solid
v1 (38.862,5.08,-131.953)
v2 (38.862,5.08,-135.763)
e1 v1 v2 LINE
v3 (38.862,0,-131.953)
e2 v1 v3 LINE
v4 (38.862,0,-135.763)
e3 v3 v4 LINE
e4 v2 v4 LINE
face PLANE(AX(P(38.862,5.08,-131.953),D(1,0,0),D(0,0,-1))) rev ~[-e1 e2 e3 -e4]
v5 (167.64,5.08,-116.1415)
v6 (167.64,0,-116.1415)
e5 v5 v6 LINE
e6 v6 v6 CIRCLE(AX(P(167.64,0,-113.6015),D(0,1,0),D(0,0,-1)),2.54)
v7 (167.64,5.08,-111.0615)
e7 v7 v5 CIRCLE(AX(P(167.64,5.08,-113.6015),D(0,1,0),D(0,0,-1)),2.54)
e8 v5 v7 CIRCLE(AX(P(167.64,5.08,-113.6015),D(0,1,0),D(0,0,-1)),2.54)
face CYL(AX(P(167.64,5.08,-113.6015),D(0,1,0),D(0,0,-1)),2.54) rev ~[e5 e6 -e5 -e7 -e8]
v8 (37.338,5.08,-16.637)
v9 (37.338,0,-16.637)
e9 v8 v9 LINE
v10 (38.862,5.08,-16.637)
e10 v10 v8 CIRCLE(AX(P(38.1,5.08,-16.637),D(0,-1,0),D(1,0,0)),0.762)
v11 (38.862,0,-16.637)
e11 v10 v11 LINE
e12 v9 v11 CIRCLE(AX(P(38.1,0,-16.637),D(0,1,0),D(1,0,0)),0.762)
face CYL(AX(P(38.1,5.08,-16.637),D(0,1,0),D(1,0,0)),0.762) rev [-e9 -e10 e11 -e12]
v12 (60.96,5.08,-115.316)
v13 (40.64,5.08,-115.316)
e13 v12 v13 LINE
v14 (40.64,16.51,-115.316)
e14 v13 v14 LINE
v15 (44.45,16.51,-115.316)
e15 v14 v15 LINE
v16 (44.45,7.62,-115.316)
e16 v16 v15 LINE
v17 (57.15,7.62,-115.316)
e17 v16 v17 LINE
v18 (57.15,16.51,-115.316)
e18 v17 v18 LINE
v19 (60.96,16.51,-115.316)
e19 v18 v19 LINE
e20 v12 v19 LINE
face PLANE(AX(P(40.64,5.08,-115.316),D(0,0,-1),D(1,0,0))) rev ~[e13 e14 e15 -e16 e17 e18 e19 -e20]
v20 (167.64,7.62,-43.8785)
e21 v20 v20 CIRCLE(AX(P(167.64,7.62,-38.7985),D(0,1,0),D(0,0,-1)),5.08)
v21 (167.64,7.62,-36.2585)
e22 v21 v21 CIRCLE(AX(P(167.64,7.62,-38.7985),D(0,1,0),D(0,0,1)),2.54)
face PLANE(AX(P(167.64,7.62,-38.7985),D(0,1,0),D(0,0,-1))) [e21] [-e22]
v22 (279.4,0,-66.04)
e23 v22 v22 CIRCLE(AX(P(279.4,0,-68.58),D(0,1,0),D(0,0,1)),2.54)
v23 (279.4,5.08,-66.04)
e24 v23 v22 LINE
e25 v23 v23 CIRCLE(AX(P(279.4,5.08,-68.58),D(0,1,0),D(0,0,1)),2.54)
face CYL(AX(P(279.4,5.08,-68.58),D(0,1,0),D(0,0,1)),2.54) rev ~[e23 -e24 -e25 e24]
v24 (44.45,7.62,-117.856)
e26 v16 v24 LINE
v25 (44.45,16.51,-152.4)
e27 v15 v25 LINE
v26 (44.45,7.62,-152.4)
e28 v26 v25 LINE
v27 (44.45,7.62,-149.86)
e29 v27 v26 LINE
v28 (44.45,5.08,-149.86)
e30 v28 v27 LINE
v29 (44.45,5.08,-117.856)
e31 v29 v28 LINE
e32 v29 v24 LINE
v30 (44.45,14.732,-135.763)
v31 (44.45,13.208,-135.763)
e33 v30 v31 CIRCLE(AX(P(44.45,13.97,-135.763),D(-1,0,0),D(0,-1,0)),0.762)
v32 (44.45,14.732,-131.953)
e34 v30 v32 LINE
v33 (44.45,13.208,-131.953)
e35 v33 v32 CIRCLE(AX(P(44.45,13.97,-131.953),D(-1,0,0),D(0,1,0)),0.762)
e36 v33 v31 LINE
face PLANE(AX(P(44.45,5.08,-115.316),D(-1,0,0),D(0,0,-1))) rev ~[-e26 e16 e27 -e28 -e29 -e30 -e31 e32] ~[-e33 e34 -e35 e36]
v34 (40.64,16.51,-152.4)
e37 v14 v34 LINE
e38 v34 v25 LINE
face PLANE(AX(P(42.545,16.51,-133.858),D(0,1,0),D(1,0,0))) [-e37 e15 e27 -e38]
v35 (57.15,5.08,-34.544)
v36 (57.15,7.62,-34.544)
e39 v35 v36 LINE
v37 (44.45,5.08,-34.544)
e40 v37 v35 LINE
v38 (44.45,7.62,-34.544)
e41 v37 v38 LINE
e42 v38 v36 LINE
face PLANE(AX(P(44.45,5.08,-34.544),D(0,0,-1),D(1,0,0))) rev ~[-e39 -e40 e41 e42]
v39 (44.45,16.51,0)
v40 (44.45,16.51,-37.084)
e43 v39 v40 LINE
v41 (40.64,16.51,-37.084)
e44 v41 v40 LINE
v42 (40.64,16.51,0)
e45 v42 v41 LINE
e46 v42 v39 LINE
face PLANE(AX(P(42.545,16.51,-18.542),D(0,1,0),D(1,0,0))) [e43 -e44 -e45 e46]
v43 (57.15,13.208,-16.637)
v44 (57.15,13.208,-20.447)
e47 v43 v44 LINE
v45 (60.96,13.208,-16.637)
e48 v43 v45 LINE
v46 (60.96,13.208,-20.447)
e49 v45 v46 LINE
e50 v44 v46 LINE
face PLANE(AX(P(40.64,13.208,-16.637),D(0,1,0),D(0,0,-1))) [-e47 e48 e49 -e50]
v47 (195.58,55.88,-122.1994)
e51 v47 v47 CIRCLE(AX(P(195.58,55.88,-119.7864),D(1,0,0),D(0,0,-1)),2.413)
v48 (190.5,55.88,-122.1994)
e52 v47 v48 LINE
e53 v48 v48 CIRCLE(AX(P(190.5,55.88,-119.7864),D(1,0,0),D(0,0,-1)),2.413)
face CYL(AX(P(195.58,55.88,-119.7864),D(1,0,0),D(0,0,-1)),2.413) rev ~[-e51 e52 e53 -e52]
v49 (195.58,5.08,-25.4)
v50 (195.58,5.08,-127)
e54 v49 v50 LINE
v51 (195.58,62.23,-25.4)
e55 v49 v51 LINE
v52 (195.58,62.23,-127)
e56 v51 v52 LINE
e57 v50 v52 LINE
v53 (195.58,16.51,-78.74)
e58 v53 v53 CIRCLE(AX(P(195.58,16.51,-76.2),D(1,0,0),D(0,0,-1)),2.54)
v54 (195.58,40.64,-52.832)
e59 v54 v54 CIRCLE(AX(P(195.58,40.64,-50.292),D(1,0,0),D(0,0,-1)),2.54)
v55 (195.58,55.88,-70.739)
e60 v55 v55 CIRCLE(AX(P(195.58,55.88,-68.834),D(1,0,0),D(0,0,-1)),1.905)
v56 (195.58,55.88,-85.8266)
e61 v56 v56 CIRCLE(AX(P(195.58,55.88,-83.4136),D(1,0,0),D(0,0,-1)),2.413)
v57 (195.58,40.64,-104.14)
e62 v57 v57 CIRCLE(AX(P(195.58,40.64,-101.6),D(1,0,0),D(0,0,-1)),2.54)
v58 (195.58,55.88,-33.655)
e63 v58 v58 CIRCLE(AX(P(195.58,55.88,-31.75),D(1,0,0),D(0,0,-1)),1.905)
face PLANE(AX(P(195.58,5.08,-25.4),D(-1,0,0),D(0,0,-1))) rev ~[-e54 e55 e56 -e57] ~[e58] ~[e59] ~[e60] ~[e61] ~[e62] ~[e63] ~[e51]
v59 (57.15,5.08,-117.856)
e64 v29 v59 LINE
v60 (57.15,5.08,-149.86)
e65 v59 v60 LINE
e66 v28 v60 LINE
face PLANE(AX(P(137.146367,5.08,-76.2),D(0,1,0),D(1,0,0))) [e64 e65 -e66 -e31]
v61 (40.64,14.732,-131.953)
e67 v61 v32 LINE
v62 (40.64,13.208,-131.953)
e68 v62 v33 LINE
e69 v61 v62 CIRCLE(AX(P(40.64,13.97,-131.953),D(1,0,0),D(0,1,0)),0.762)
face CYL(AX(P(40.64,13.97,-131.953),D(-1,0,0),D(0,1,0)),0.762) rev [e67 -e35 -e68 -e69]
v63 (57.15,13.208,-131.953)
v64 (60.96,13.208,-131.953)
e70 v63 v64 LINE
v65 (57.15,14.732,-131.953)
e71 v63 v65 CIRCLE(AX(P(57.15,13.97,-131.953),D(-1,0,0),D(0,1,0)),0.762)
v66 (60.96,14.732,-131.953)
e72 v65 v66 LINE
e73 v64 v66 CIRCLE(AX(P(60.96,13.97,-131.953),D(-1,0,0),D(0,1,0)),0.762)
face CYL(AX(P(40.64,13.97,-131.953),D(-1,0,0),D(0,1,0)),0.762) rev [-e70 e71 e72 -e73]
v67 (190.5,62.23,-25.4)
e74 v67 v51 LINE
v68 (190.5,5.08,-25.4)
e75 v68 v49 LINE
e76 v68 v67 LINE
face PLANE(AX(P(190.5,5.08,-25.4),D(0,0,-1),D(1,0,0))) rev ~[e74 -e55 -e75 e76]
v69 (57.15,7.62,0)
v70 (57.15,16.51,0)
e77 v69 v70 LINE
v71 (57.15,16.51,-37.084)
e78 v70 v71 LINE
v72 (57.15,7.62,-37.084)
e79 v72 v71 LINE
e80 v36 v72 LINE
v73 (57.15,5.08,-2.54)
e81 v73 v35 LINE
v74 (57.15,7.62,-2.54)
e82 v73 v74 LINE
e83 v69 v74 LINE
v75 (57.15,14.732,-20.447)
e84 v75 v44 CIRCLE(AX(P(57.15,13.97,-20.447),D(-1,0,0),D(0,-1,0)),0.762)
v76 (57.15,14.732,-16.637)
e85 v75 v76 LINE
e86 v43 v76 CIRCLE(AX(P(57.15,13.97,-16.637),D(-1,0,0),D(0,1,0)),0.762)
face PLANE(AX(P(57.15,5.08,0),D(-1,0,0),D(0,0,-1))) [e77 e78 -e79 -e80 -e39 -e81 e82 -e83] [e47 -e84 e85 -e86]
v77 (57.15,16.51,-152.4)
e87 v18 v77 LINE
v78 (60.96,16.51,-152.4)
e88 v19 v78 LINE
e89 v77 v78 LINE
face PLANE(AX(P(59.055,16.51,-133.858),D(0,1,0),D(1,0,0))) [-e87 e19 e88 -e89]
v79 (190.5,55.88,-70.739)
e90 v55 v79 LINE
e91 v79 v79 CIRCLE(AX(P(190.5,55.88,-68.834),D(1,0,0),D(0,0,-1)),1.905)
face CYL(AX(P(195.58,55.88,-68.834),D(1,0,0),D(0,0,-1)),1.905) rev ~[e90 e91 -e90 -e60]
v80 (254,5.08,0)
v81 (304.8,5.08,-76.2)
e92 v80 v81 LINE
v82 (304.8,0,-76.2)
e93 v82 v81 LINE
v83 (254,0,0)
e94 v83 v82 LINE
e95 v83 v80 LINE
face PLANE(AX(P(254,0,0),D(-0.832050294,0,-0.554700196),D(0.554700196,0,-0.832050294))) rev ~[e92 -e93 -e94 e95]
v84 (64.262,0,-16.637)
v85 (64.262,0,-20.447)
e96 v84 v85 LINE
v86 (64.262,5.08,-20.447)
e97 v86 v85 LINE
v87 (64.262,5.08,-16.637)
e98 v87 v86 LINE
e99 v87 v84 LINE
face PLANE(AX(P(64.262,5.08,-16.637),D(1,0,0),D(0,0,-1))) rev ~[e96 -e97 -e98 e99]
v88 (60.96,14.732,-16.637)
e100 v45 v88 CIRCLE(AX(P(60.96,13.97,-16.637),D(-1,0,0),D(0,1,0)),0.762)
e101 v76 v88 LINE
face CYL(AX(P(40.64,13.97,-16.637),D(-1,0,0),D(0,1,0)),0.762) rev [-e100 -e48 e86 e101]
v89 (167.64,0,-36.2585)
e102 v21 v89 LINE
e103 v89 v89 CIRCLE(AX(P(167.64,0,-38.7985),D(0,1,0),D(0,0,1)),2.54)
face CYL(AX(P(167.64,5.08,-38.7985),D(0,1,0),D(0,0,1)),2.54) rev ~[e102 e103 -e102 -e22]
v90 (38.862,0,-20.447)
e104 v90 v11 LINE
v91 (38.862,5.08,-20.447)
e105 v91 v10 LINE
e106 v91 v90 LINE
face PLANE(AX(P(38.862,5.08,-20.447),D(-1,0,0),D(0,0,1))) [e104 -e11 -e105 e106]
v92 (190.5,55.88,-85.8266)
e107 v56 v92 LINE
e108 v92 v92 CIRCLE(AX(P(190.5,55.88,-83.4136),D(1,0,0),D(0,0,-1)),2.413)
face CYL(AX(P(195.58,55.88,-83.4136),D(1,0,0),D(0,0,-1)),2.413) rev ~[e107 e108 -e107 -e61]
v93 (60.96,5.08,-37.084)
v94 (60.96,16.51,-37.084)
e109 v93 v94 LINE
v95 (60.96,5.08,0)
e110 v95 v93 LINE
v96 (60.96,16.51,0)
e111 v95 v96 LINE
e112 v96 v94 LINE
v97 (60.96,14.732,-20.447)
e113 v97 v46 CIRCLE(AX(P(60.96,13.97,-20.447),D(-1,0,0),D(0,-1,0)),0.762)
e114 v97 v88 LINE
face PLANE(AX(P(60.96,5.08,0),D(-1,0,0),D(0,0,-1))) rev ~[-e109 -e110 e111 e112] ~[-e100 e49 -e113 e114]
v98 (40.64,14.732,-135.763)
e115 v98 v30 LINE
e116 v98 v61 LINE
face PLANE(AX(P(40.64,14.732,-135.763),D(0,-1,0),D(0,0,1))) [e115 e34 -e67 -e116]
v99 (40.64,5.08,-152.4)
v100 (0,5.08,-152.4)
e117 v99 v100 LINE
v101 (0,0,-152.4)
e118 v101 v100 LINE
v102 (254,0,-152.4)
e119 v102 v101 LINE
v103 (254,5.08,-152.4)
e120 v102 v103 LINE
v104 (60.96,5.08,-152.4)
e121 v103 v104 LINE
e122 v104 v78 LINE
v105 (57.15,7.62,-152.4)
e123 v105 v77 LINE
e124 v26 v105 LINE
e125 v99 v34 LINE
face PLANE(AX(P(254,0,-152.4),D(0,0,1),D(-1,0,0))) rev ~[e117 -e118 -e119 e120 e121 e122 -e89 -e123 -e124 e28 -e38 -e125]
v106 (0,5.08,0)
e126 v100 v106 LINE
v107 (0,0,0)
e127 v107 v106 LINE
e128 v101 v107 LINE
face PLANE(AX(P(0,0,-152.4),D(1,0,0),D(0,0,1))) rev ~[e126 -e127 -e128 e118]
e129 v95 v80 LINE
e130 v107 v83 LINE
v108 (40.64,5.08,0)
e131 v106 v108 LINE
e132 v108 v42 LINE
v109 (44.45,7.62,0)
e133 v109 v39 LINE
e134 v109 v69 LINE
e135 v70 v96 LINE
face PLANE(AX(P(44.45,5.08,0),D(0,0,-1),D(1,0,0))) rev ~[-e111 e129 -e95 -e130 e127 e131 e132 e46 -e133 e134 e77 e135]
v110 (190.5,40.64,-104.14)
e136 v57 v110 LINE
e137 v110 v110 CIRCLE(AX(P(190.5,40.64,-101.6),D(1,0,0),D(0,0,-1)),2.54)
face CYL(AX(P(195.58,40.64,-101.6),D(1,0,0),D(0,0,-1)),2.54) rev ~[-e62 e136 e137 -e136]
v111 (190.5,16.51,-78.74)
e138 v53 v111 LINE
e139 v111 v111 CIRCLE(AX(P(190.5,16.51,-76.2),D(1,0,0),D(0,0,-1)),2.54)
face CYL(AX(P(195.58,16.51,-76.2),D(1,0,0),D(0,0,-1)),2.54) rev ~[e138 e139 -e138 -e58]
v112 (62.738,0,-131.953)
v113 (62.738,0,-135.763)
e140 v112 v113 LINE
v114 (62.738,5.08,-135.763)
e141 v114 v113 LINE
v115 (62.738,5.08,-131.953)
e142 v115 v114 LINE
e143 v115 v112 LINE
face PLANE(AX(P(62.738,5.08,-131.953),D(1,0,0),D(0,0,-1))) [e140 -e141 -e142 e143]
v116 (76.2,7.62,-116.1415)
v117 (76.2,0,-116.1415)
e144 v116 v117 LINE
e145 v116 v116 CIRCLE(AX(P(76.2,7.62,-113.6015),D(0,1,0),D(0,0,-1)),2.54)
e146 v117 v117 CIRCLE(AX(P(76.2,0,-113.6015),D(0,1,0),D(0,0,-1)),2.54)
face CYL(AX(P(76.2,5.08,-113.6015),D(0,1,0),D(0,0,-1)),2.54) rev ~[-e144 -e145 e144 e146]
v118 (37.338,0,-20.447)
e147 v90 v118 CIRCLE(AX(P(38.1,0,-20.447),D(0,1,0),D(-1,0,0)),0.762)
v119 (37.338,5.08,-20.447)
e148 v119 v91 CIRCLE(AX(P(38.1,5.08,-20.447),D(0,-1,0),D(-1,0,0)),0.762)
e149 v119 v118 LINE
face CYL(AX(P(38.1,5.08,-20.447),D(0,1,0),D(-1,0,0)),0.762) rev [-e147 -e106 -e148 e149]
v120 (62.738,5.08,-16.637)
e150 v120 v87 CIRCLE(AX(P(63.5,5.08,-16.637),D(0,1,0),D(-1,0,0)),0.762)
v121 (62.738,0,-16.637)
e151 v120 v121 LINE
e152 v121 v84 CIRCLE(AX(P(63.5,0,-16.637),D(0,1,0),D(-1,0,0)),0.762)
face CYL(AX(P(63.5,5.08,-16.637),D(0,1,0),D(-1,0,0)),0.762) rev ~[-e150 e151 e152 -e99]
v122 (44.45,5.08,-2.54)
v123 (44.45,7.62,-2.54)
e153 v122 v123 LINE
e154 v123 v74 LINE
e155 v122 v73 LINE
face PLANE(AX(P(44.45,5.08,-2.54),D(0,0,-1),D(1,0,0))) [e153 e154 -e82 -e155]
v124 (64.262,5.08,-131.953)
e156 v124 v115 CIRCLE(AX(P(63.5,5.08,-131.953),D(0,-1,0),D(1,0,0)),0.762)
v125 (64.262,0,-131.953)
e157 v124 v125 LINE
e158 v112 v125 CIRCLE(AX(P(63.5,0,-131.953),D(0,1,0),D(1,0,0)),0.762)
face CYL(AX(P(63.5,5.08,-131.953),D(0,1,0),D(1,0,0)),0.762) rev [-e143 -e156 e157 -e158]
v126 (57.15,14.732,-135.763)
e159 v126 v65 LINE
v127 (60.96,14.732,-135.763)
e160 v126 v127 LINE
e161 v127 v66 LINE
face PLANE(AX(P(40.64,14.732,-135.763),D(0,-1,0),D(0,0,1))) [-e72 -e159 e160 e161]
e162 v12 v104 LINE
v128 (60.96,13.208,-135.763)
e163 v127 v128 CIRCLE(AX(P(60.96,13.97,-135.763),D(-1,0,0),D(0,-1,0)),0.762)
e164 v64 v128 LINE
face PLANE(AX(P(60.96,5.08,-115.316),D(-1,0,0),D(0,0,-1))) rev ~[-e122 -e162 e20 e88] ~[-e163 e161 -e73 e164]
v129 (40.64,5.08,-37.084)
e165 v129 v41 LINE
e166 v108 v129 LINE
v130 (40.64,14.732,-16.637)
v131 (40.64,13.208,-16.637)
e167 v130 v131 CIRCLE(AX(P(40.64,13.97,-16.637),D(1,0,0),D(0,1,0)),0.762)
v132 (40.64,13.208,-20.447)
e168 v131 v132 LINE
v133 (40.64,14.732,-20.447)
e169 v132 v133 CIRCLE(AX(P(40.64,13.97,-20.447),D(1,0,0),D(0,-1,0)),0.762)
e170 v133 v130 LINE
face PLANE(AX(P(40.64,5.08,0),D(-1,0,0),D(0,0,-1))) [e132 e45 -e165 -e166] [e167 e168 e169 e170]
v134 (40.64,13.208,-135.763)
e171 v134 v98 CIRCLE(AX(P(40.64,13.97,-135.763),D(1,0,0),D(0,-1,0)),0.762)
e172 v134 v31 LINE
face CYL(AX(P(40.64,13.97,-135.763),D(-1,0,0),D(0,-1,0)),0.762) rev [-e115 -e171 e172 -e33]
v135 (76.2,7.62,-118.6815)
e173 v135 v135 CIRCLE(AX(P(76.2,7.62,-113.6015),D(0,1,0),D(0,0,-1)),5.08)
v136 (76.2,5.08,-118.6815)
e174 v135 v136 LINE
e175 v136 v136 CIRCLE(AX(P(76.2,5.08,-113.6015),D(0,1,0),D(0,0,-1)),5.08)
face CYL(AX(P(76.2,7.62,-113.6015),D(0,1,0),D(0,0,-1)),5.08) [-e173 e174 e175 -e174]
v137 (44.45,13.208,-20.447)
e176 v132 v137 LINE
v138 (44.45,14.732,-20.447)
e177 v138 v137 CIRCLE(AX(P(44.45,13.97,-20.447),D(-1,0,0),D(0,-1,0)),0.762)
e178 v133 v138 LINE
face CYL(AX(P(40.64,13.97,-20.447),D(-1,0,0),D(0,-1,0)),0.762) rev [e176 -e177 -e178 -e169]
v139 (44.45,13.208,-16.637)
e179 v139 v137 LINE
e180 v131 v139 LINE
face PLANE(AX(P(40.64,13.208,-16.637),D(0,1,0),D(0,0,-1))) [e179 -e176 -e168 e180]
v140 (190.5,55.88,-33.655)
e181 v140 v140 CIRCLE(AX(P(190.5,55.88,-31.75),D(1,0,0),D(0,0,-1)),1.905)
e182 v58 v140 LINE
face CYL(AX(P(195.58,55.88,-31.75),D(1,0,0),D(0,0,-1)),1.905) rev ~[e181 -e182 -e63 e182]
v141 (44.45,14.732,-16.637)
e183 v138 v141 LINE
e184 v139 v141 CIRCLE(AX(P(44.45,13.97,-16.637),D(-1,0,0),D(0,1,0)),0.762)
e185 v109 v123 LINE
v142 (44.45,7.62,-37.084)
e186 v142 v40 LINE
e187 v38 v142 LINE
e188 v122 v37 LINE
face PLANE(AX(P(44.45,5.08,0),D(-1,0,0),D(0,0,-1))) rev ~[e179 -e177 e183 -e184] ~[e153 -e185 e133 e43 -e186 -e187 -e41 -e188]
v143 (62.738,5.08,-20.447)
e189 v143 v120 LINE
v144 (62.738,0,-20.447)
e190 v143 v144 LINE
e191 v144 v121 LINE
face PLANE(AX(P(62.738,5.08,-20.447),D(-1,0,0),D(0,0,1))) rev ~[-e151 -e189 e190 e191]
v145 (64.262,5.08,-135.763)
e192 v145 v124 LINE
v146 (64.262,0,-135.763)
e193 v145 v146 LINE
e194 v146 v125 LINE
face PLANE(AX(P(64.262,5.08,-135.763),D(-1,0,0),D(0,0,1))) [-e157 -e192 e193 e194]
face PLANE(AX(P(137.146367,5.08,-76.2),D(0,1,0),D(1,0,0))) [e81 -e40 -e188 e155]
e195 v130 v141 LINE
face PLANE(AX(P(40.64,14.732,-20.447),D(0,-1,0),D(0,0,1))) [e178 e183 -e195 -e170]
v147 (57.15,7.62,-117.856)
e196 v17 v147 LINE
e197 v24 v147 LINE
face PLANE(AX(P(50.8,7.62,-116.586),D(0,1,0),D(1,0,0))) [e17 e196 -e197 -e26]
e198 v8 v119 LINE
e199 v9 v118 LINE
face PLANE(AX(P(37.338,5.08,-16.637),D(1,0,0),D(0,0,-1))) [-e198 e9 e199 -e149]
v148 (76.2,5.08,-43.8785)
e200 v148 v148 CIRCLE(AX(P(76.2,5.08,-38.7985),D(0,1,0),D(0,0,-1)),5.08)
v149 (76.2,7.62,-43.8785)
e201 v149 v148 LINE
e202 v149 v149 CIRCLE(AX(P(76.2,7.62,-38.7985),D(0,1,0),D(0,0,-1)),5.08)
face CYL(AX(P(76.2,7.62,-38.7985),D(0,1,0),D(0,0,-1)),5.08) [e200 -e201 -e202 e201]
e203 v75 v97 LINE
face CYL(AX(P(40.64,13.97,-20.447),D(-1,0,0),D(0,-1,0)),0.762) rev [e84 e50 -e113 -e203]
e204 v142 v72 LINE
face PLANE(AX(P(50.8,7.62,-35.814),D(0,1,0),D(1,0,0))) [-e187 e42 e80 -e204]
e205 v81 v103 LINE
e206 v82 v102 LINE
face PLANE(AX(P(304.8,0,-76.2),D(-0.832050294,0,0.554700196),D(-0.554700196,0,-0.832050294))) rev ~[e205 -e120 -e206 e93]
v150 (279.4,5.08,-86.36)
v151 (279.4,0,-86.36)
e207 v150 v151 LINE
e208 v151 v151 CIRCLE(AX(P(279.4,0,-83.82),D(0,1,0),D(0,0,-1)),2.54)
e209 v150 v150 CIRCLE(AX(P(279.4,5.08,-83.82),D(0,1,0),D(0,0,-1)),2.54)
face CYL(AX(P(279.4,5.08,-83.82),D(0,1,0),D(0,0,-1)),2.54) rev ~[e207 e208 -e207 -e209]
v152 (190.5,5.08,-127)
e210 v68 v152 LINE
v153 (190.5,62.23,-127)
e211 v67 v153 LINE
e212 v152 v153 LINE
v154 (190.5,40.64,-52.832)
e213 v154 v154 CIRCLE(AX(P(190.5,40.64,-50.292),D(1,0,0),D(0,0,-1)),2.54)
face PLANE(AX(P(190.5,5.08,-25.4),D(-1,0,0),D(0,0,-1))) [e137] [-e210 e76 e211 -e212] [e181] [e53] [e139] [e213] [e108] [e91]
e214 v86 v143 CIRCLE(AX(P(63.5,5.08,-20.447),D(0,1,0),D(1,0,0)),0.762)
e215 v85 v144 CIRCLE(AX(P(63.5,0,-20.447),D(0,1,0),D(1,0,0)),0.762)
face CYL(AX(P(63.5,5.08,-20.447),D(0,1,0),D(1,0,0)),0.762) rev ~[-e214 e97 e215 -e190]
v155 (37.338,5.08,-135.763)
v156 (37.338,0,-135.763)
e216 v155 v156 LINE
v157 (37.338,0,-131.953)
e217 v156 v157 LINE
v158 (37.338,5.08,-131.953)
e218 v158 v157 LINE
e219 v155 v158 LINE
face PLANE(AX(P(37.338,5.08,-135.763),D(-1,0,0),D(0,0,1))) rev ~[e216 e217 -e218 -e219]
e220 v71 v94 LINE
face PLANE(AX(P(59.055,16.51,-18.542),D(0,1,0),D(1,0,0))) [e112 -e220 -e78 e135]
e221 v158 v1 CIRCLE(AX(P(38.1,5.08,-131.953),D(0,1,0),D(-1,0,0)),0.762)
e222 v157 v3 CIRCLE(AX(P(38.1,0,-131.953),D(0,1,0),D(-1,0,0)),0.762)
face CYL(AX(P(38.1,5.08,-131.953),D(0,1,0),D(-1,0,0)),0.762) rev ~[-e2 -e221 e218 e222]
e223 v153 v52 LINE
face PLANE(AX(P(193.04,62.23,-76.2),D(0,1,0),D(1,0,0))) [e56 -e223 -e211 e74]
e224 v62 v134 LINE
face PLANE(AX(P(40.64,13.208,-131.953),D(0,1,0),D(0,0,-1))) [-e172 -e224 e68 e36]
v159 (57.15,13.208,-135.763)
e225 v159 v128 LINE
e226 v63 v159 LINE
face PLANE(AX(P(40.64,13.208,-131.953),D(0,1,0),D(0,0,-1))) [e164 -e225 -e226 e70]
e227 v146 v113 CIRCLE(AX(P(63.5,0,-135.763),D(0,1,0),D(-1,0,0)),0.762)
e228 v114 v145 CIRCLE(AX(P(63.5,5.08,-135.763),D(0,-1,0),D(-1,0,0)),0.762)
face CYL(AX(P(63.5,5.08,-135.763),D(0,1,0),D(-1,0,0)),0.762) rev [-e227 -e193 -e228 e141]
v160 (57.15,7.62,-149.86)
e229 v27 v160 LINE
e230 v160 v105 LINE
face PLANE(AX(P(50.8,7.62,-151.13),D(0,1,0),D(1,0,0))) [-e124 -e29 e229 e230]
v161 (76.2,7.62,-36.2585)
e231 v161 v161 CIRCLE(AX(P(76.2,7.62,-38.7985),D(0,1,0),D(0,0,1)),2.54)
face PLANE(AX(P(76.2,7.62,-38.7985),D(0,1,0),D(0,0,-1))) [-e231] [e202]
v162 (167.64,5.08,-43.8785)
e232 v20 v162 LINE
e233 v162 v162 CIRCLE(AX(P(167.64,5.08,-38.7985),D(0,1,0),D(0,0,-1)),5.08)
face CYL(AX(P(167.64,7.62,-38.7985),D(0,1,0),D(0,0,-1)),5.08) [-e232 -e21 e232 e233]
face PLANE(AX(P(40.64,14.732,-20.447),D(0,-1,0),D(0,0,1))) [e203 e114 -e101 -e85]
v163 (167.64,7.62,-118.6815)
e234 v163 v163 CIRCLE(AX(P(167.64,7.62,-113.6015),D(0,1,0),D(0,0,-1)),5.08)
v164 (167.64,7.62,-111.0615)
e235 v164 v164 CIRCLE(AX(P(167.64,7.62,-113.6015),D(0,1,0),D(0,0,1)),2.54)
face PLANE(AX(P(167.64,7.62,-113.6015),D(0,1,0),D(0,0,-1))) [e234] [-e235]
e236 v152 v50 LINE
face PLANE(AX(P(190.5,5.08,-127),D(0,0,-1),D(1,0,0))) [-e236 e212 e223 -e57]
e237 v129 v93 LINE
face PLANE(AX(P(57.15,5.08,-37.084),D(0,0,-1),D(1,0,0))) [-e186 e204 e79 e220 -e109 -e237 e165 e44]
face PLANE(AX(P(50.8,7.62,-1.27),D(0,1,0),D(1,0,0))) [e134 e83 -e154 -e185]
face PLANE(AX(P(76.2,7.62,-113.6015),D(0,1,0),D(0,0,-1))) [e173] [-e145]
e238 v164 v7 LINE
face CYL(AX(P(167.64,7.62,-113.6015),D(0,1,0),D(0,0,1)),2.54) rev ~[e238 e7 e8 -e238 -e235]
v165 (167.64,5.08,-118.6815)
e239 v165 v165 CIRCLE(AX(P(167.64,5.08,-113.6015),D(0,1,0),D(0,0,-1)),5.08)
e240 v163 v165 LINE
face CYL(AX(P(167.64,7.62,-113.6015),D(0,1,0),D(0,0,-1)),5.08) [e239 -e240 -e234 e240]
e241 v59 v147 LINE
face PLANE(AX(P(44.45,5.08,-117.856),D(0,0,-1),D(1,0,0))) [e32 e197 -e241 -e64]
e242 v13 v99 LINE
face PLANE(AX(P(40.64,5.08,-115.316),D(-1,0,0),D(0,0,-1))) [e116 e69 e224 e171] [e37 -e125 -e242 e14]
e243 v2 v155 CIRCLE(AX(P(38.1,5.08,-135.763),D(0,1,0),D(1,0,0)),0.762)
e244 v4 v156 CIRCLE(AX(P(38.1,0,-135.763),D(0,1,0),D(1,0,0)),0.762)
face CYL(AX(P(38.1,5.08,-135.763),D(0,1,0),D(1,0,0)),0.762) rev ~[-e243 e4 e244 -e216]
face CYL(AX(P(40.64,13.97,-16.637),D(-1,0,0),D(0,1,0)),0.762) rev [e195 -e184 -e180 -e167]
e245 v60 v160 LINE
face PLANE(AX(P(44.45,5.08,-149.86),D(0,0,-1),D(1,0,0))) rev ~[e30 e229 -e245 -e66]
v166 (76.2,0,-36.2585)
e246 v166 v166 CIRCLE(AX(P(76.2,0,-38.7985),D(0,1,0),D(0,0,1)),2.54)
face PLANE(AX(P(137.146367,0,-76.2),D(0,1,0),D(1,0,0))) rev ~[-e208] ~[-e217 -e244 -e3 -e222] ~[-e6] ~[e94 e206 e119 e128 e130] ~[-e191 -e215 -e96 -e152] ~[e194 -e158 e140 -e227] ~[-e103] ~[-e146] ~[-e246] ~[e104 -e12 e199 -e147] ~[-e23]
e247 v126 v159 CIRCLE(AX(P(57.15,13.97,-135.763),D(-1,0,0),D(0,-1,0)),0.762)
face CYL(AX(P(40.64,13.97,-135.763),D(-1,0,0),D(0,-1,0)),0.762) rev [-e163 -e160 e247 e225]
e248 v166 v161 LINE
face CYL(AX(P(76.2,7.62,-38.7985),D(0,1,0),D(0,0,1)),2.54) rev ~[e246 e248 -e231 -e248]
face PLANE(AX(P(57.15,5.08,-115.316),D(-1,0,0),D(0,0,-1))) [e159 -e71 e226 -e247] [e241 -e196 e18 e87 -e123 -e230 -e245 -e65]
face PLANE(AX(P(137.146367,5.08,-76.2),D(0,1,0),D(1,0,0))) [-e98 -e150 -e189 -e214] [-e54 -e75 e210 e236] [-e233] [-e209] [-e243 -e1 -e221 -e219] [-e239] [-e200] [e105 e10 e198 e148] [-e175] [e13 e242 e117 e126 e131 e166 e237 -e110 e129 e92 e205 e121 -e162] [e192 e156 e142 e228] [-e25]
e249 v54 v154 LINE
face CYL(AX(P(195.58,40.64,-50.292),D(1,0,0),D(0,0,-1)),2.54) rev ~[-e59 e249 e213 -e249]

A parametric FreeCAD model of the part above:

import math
import FreeCAD as App
import Part
import Sketcher
Q = App.Units.Quantity

doc = App.newDocument("Part")
body = doc.addObject("PartDesign::Body", "Body")

# Sketch on XZ plane
sketch1 = body.newObject("Sketcher::SketchObject", "Sketch")
sketch1.AttachmentSupport = (doc.getObject("XZ_Plane"), [""])
sketch1.MapMode = "FlatFace"
sketch1.addGeometry([
    Part.LineSegment(App.Vector(0, 0, 0), App.Vector(254, 0, 0)),  # 0
    Part.LineSegment(App.Vector(254, 0, 0), App.Vector(305, -76, 0)),  # 1
    Part.LineSegment(App.Vector(305, -76, 0), App.Vector(254, -152, 0)),  # 2
    Part.LineSegment(App.Vector(254, -152, 0), App.Vector(0, -152, 0)),  # 3
    Part.LineSegment(App.Vector(0, -152, 0), App.Vector(0, 0, 0)),  # 4
], False)
sketch1.addConstraint([
    Sketcher.Constraint("Coincident", 0, 2, 1, 1),
    Sketcher.Constraint("Coincident", 1, 2, 2, 1),
    Sketcher.Constraint("Coincident", 2, 2, 3, 1),
    Sketcher.Constraint("Coincident", 3, 2, 4, 1),
    Sketcher.Constraint("Coincident", 4, 2, 0, 1),
    Sketcher.Constraint("Horizontal", 0),
    Sketcher.Constraint("Horizontal", 3),
    Sketcher.Constraint("Vertical", 4),
    Sketcher.Constraint("Coincident", 4, 2, -1, 1),
    Sketcher.Constraint("Vertical", 0, 2, 2, 2),
    Sketcher.Constraint("Equal", 1, 2),
    Sketcher.Constraint("DistanceX", 0, 1, 0, 2, Q("10 in")),
    Sketcher.Constraint("DistanceY", 4, 1, 4, 2, Q("6 in")),
    Sketcher.Constraint("DistanceX", -1, 1, 1, 2, Q("12 in")),
])
pad1 = body.newObject("PartDesign::Pad", "Pad")
pad1.Profile = sketch1
pad1.Length = Q("0.2 in")
pad1.Reversed = True

# Sketch on XZ plane
sketch2 = body.newObject("Sketcher::SketchObject", "Sketch001")
sketch2.AttachmentSupport = (doc.getObject("XZ_Plane"), [""])
sketch2.MapMode = "FlatFace"
sketch2.AttachmentOffset = App.Placement(App.Vector(0, 0, -0.2 * 25.4), App.Rotation())
sketch2.addGeometry([
    Part.Circle(App.Vector(76.2, -38.8, 0), App.Vector(0, 0, 1), 2.5),
    Part.Circle(App.Vector(167.6, -38.8, 0), App.Vector(0, 0, 1), 2.5),
    Part.Circle(App.Vector(167.6, -113.6, 0), App.Vector(0, 0, 1), 2.5),
    Part.Circle(App.Vector(76.2, -113.6, 0), App.Vector(0, 0, 1), 2.5),
], False)
sketch2.addConstraint([
    Sketcher.Constraint("Equal", 0, 1),
    Sketcher.Constraint("Equal", 1, 2),
    Sketcher.Constraint("Equal", 2, 3),
    Sketcher.Constraint("Horizontal", 0, 3, 1, 3),
    Sketcher.Constraint("Horizontal", 2, 3, 3, 3),
    Sketcher.Constraint("Vertical", 1, 3, 2, 3),
    Sketcher.Constraint("Vertical", 0, 3, 3, 3),
    Sketcher.Constraint("Diameter", 0, Q("0.2 in")),
    Sketcher.Constraint("DistanceX", -1, 1, 0, 3, Q("3 in")),
    Sketcher.Constraint("DistanceX", -1, 1, 1, 3, Q("6.6 in")),
    Sketcher.Constraint("DistanceY", 2, 3, 1, 3, Q("2.945 in")),
    Sketcher.Constraint("DistanceY", 0, 3, -1, 1, Q("1.5275 in")),
])
pocket1 = body.newObject("PartDesign::Pocket", "Pocket")
pocket1.Profile = sketch2
pocket1.Type = "ThroughAll"
pocket1.Reversed = True

# Sketch on XZ plane
sketch3 = body.newObject("Sketcher::SketchObject", "Sketch002")
sketch3.AttachmentSupport = (doc.getObject("XZ_Plane"), [""])
sketch3.MapMode = "FlatFace"
sketch3.AttachmentOffset = App.Placement(App.Vector(0, 0, -0.2 * 25.4), App.Rotation())
sketch3.addGeometry([
    Part.Circle(App.Vector(279.4, -68.6, 0), App.Vector(0, 0, 1), 2.5),
    Part.Circle(App.Vector(279.4, -83.8, 0), App.Vector(0, 0, 1), 2.5),
], False)
sketch3.addConstraint([
    Sketcher.Constraint("Equal", 0, 1),
    Sketcher.Constraint("Vertical", 0, 3, 1, 3),
    Sketcher.Constraint("Diameter", 0, Q("0.2 in")),
    Sketcher.Constraint("DistanceX", -1, 1, 0, 3, Q("11 in")),
    Sketcher.Constraint("DistanceY", 0, 3, -1, 1, Q("2.7 in")),
    Sketcher.Constraint("DistanceY", 1, 3, -1, 1, Q("3.3 in")),
])
pocket2 = body.newObject("PartDesign::Pocket", "Pocket001")
pocket2.Profile = sketch3
pocket2.Type = "ThroughAll"
pocket2.Reversed = True

# Sketch on XZ plane
sketch4 = body.newObject("Sketcher::SketchObject", "Sketch003")
sketch4.AttachmentSupport = (doc.getObject("XZ_Plane"), [""])
sketch4.MapMode = "FlatFace"
sketch4.AttachmentOffset = App.Placement(App.Vector(0, 0, -0.2 * 25.4), App.Rotation())
sketch4.addGeometry([
    Part.LineSegment(App.Vector(40.6, -37.1, 0), App.Vector(40.6, 0, 0)),  # 0
    Part.LineSegment(App.Vector(40.6, 0, 0), App.Vector(44.5, 0, 0)),  # 1
    Part.LineSegment(App.Vector(44.5, 0, 0), App.Vector(44.5, -37.1, 0)),  # 2
    Part.LineSegment(App.Vector(44.5, -37.1, 0), App.Vector(40.6, -37.1, 0)),  # 3
    Part.LineSegment(App.Vector(57.1, -37.1, 0), App.Vector(57.1, 0, 0)),  # 4
    Part.LineSegment(App.Vector(57.1, 0, 0), App.Vector(61, 0, 0)),  # 5
    Part.LineSegment(App.Vector(61, 0, 0), App.Vector(61, -37.1, 0)),  # 6
    Part.LineSegment(App.Vector(61, -37.1, 0), App.Vector(57.1, -37.1, 0)),  # 7
    Part.LineSegment(App.Vector(57.1, -152.4, 0), App.Vector(57.1, -115.3, 0)),  # 8
    Part.LineSegment(App.Vector(57.1, -115.3, 0), App.Vector(61, -115.3, 0)),  # 9
    Part.LineSegment(App.Vector(61, -115.3, 0), App.Vector(61, -152.4, 0)),  # 10
    Part.LineSegment(App.Vector(61, -152.4, 0), App.Vector(57.1, -152.4, 0)),  # 11
    Part.LineSegment(App.Vector(40.6, -152.4, 0), App.Vector(40.6, -115.3, 0)),  # 12
    Part.LineSegment(App.Vector(40.6, -115.3, 0), App.Vector(44.5, -115.3, 0)),  # 13
    Part.LineSegment(App.Vector(44.5, -115.3, 0), App.Vector(44.5, -152.4, 0)),  # 14
    Part.LineSegment(App.Vector(44.5, -152.4, 0), App.Vector(40.6, -152.4, 0)),  # 15
], False)
sketch4.addConstraint([
    Sketcher.Constraint("Coincident", 0, 2, 1, 1),
    Sketcher.Constraint("Coincident", 1, 2, 2, 1),
    Sketcher.Constraint("Coincident", 2, 2, 3, 1),
    Sketcher.Constraint("Coincident", 3, 2, 0, 1),
    Sketcher.Constraint("Coincident", 4, 2, 5, 1),
    Sketcher.Constraint("Coincident", 5, 2, 6, 1),
    Sketcher.Constraint("Coincident", 6, 2, 7, 1),
    Sketcher.Constraint("Coincident", 7, 2, 4, 1),
    Sketcher.Constraint("Coincident", 8, 2, 9, 1),
    Sketcher.Constraint("Coincident", 9, 2, 10, 1),
    Sketcher.Constraint("Coincident", 10, 2, 11, 1),
    Sketcher.Constraint("Coincident", 11, 2, 8, 1),
    Sketcher.Constraint("Coincident", 12, 2, 13, 1),
    Sketcher.Constraint("Coincident", 13, 2, 14, 1),
    Sketcher.Constraint("Coincident", 14, 2, 15, 1),
    Sketcher.Constraint("Coincident", 15, 2, 12, 1),
    Sketcher.Constraint("Vertical", 0),
    Sketcher.Constraint("Horizontal", 1),
    Sketcher.Constraint("Vertical", 2),
    Sketcher.Constraint("Horizontal", 3),
    Sketcher.Constraint("Vertical", 4),
    Sketcher.Constraint("Horizontal", 5),
    Sketcher.Constraint("Vertical", 6),
    Sketcher.Constraint("Horizontal", 7),
    Sketcher.Constraint("Vertical", 8),
    Sketcher.Constraint("Horizontal", 9),
    Sketcher.Constraint("Vertical", 10),
    Sketcher.Constraint("Horizontal", 11),
    Sketcher.Constraint("Vertical", 12),
    Sketcher.Constraint("Horizontal", 13),
    Sketcher.Constraint("Vertical", 14),
    Sketcher.Constraint("Horizontal", 15),
    Sketcher.Constraint("PointOnObject", 0, 2, -1),
    Sketcher.Constraint("PointOnObject", 4, 2, -1),
    Sketcher.Constraint("Horizontal", 3, 2, 6, 2),
    Sketcher.Constraint("Horizontal", 9, 2, 12, 2),
    Sketcher.Constraint("Horizontal", 11, 2, 14, 2),
    Sketcher.Constraint("Vertical", 7, 2, 8, 2),
    Sketcher.Constraint("Vertical", 6, 2, 9, 2),
    Sketcher.Constraint("Vertical", 3, 2, 12, 2),
    Sketcher.Constraint("Vertical", 2, 2, 13, 2),
    Sketcher.Constraint("Equal", 3, 5),
    Sketcher.Constraint("Equal", 6, 8),
    Sketcher.Constraint("DistanceY", 10, 2, -1, 1, Q("6 in")),
    Sketcher.Constraint("DistanceX", 1, 1, 1, 2, Q("0.15 in")),
    Sketcher.Constraint("DistanceY", 0, 1, 0, 2, Q("1.46 in")),
    Sketcher.Constraint("DistanceX", -1, 1, 0, 2, Q("1.6 in")),
    Sketcher.Constraint("DistanceX", -1, 1, 5, 2, Q("2.4 in")),
])
pad2 = body.newObject("PartDesign::Pad", "Pad001")
pad2.Profile = sketch4
pad2.Length = Q("0.45 in")
pad2.Reversed = True

# Sketch on XZ plane
sketch5 = body.newObject("Sketcher::SketchObject", "Sketch004")
sketch5.AttachmentSupport = (doc.getObject("XZ_Plane"), [""])
sketch5.MapMode = "FlatFace"
sketch5.AttachmentOffset = App.Placement(App.Vector(0, 0, -0.2 * 25.4), App.Rotation())
sketch5.addGeometry([
    Part.LineSegment(App.Vector(44.5, -2.5, 0), App.Vector(44.5, 0, 0)),  # 0
    Part.LineSegment(App.Vector(44.5, 0, 0), App.Vector(57.1, 0, 0)),  # 1
    Part.LineSegment(App.Vector(57.1, 0, 0), App.Vector(57.1, -2.5, 0)),  # 2
    Part.LineSegment(App.Vector(57.1, -2.5, 0), App.Vector(44.5, -2.5, 0)),  # 3
    Part.LineSegment(App.Vector(44.5, -152.4, 0), App.Vector(44.5, -149.9, 0)),  # 4
    Part.LineSegment(App.Vector(44.5, -149.9, 0), App.Vector(57.1, -149.9, 0)),  # 5
    Part.LineSegment(App.Vector(57.1, -149.9, 0), App.Vector(57.1, -152.4, 0)),  # 6
    Part.LineSegment(App.Vector(57.1, -152.4, 0), App.Vector(44.5, -152.4, 0)),  # 7
    Part.LineSegment(App.Vector(44.5, -117.9, 0), App.Vector(44.5, -115.3, 0)),  # 8
    Part.LineSegment(App.Vector(44.5, -115.3, 0), App.Vector(57.1, -115.3, 0)),  # 9
    Part.LineSegment(App.Vector(57.1, -115.3, 0), App.Vector(57.1, -117.9, 0)),  # 10
    Part.LineSegment(App.Vector(57.1, -117.9, 0), App.Vector(44.5, -117.9, 0)),  # 11
    Part.LineSegment(App.Vector(44.5, -37.1, 0), App.Vector(44.5, -34.5, 0)),  # 12
    Part.LineSegment(App.Vector(44.5, -34.5, 0), App.Vector(57.1, -34.5, 0)),  # 13
    Part.LineSegment(App.Vector(57.1, -34.5, 0), App.Vector(57.1, -37.1, 0)),  # 14
    Part.LineSegment(App.Vector(57.1, -37.1, 0), App.Vector(44.5, -37.1, 0)),  # 15
], False)
sketch5.addConstraint([
    Sketcher.Constraint("Coincident", 0, 2, 1, 1),
    Sketcher.Constraint("Coincident", 1, 2, 2, 1),
    Sketcher.Constraint("Coincident", 2, 2, 3, 1),
    Sketcher.Constraint("Coincident", 3, 2, 0, 1),
    Sketcher.Constraint("Coincident", 4, 2, 5, 1),
    Sketcher.Constraint("Coincident", 5, 2, 6, 1),
    Sketcher.Constraint("Coincident", 6, 2, 7, 1),
    Sketcher.Constraint("Coincident", 7, 2, 4, 1),
    Sketcher.Constraint("Coincident", 8, 2, 9, 1),
    Sketcher.Constraint("Coincident", 9, 2, 10, 1),
    Sketcher.Constraint("Coincident", 10, 2, 11, 1),
    Sketcher.Constraint("Coincident", 11, 2, 8, 1),
    Sketcher.Constraint("Coincident", 12, 2, 13, 1),
    Sketcher.Constraint("Coincident", 13, 2, 14, 1),
    Sketcher.Constraint("Coincident", 14, 2, 15, 1),
    Sketcher.Constraint("Coincident", 15, 2, 12, 1),
    Sketcher.Constraint("Vertical", 0),
    Sketcher.Constraint("Horizontal", 1),
    Sketcher.Constraint("Vertical", 2),
    Sketcher.Constraint("Horizontal", 3),
    Sketcher.Constraint("Vertical", 4),
    Sketcher.Constraint("Horizontal", 5),
    Sketcher.Constraint("Vertical", 6),
    Sketcher.Constraint("Horizontal", 7),
    Sketcher.Constraint("Vertical", 8),
    Sketcher.Constraint("Horizontal", 9),
    Sketcher.Constraint("Vertical", 10),
    Sketcher.Constraint("Horizontal", 11),
    Sketcher.Constraint("Vertical", 12),
    Sketcher.Constraint("Horizontal", 13),
    Sketcher.Constraint("Vertical", 14),
    Sketcher.Constraint("Horizontal", 15),
    Sketcher.Constraint("PointOnObject", 0, 2, -1),
    Sketcher.Constraint("Vertical", 3, 2, 4, 2),
    Sketcher.Constraint("Vertical", 2, 2, 5, 2),
    Sketcher.Constraint("Vertical", 7, 2, 8, 2),
    Sketcher.Constraint("Vertical", 6, 2, 9, 2),
    Sketcher.Constraint("Vertical", 11, 2, 12, 2),
    Sketcher.Constraint("Vertical", 10, 2, 13, 2),
    Sketcher.Constraint("Equal", 2, 4),
    Sketcher.Constraint("Equal", 6, 8),
    Sketcher.Constraint("Equal", 10, 12),
    Sketcher.Constraint("DistanceX", 1, 1, 1, 2, Q("0.5 in")),
    Sketcher.Constraint("DistanceY", 0, 1, 0, 2, Q("0.1 in")),
    Sketcher.Constraint("DistanceY", 6, 2, -1, 1, Q("6 in")),
    Sketcher.Constraint("DistanceX", -1, 1, 0, 2, Q("1.75 in")),
    Sketcher.Constraint("DistanceY", 8, 2, -1, 1, Q("4.54 in")),
    Sketcher.Constraint("DistanceY", 12, 2, -1, 1, Q("1.36 in")),
])
pad3 = body.newObject("PartDesign::Pad", "Pad002")
pad3.Profile = sketch5
pad3.Length = Q("0.1 in")
pad3.Reversed = True

# Sketch on XZ plane
sketch6 = body.newObject("Sketcher::SketchObject", "Sketch005")
sketch6.AttachmentSupport = (doc.getObject("XZ_Plane"), [""])
sketch6.MapMode = "FlatFace"
sketch6.AttachmentOffset = App.Placement(App.Vector(0, 0, -0.3 * 25.4), App.Rotation())
sketch6.addGeometry([
    Part.Circle(App.Vector(76.2, -38.8, 0), App.Vector(0, 0, 1), 5.1),  # 0
    Part.Circle(App.Vector(76.2, -38.8, 0), App.Vector(0, 0, 1), 2.5),  # 1
    Part.Circle(App.Vector(167.6, -38.8, 0), App.Vector(0, 0, 1), 5.1),  # 2
    Part.Circle(App.Vector(167.6, -38.8, 0), App.Vector(0, 0, 1), 2.5),  # 3
    Part.Circle(App.Vector(167.6, -113.6, 0), App.Vector(0, 0, 1), 5.1),  # 4
    Part.Circle(App.Vector(167.6, -113.6, 0), App.Vector(0, 0, 1), 2.5),  # 5
    Part.Circle(App.Vector(76.2, -113.6, 0), App.Vector(0, 0, 1), 5.1),  # 6
    Part.Circle(App.Vector(76.2, -113.6, 0), App.Vector(0, 0, 1), 2.5),  # 7
], False)
sketch6.addConstraint([
    Sketcher.Constraint("Coincident", 1, 3, 0, 3),
    Sketcher.Constraint("Coincident", 3, 3, 2, 3),
    Sketcher.Constraint("Coincident", 5, 3, 4, 3),
    Sketcher.Constraint("Coincident", 7, 3, 6, 3),
    Sketcher.Constraint("Equal", 0, 2),
    Sketcher.Constraint("Equal", 1, 3),
    Sketcher.Constraint("Equal", 2, 4),
    Sketcher.Constraint("Equal", 3, 5),
    Sketcher.Constraint("Equal", 4, 6),
    Sketcher.Constraint("Equal", 5, 7),
    Sketcher.Constraint("Horizontal", 1, 3, 2, 3),
    Sketcher.Constraint("Horizontal", 5, 3, 6, 3),
    Sketcher.Constraint("Vertical", 3, 3, 4, 3),
    Sketcher.Constraint("Vertical", 1, 3, 6, 3),
    Sketcher.Constraint("Diameter", 0, Q("0.4 in")),
    Sketcher.Constraint("Diameter", 1, Q("0.2 in")),
    Sketcher.Constraint("DistanceX", -1, 1, 0, 3, Q("3 in")),
    Sketcher.Constraint("DistanceX", -1, 1, 2, 3, Q("6.6 in")),
    Sketcher.Constraint("DistanceY", 4, 3, 2, 3, Q("2.945 in")),
    Sketcher.Constraint("DistanceY", 0, 3, -1, 1, Q("1.5275 in")),
])
pad4 = body.newObject("PartDesign::Pad", "Pad003")
pad4.Profile = sketch6
pad4.Length = Q("0.1 in")

# Sketch on XZ plane
sketch7 = body.newObject("Sketcher::SketchObject", "Sketch006")
sketch7.AttachmentSupport = (doc.getObject("XZ_Plane"), [""])
sketch7.MapMode = "FlatFace"
sketch7.AttachmentOffset = App.Placement(App.Vector(0, 0, -0.2 * 25.4), App.Rotation())
sketch7.addGeometry([
    Part.LineSegment(App.Vector(190, -127, 0), App.Vector(190, -25, 0)),
    Part.LineSegment(App.Vector(190, -25, 0), App.Vector(196, -25, 0)),
    Part.LineSegment(App.Vector(196, -25, 0), App.Vector(196, -127, 0)),
    Part.LineSegment(App.Vector(196, -127, 0), App.Vector(190, -127, 0)),
], False)
sketch7.addConstraint([
    Sketcher.Constraint("Coincident", 0, 2, 1, 1),
    Sketcher.Constraint("Coincident", 1, 2, 2, 1),
    Sketcher.Constraint("Coincident", 2, 2, 3, 1),
    Sketcher.Constraint("Coincident", 3, 2, 0, 1),
    Sketcher.Constraint("Vertical", 0),
    Sketcher.Constraint("Horizontal", 1),
    Sketcher.Constraint("Vertical", 2),
    Sketcher.Constraint("Horizontal", 3),
    Sketcher.Constraint("DistanceY", 0, 1, 0, 2, Q("4 in")),
    Sketcher.Constraint("DistanceX", 1, 1, 1, 2, Q("0.2 in")),
    Sketcher.Constraint("DistanceY", 0, 2, -1, 1, Q("1 in")),
    Sketcher.Constraint("DistanceX", -1, 1, 0, 2, Q("7.5 in")),
])
pad5 = body.newObject("PartDesign::Pad", "Pad004")
pad5.Profile = sketch7
pad5.Length = Q("2.25 in")
pad5.Reversed = True

# Sketch on YZ plane
sketch8 = body.newObject("Sketcher::SketchObject", "Sketch007")
sketch8.AttachmentSupport = (doc.getObject("YZ_Plane"), [""])
sketch8.MapMode = "FlatFace"
sketch8.AttachmentOffset = App.Placement(App.Vector(0, 0, 7.7 * 25.4), App.Rotation())
sketch8.addGeometry(Part.Circle(App.Vector(55.9, -31.8, 0), App.Vector(0, 0, 1), 1.9), False)
sketch8.addConstraint([
    Sketcher.Constraint("Diameter", 0, Q("0.15 in")),
    Sketcher.Constraint("DistanceX", -1, 1, 0, 3, Q("2.2 in")),
    Sketcher.Constraint("DistanceY", 0, 3, -1, 1, Q("1.25 in")),
])
pocket3 = body.newObject("PartDesign::Pocket", "Pocket002")
pocket3.Profile = sketch8
pocket3.Type = "UpToFirst"

# Sketch on YZ plane
sketch9 = body.newObject("Sketcher::SketchObject", "Sketch008")
sketch9.AttachmentSupport = (doc.getObject("YZ_Plane"), [""])
sketch9.MapMode = "FlatFace"
sketch9.AttachmentOffset = App.Placement(App.Vector(0, 0, 7.7 * 25.4), App.Rotation())
sketch9.addGeometry(Part.Circle(App.Vector(55.9, -68.8, 0), App.Vector(0, 0, 1), 1.9), False)
sketch9.addConstraint([
    Sketcher.Constraint("Diameter", 0, Q("0.15 in")),
    Sketcher.Constraint("DistanceX", -1, 1, 0, 3, Q("2.2 in")),
    Sketcher.Constraint("DistanceY", 0, 3, -1, 1, Q("2.71 in")),
])
pocket4 = body.newObject("PartDesign::Pocket", "Pocket003")
pocket4.Profile = sketch9
pocket4.Type = "UpToFirst"

# Sketch on YZ plane
sketch10 = body.newObject("Sketcher::SketchObject", "Sketch009")
sketch10.AttachmentSupport = (doc.getObject("YZ_Plane"), [""])
sketch10.MapMode = "FlatFace"
sketch10.AttachmentOffset = App.Placement(App.Vector(0, 0, 7.7 * 25.4), App.Rotation())
sketch10.addGeometry(Part.Circle(App.Vector(40.6, -50.3, 0), App.Vector(0, 0, 1), 2.5), False)
sketch10.addConstraint([
    Sketcher.Constraint("Diameter", 0, Q("0.2 in")),
    Sketcher.Constraint("DistanceX", -1, 1, 0, 3, Q("1.6 in")),
    Sketcher.Constraint("DistanceY", 0, 3, -1, 1, Q("1.98 in")),
])
pocket5 = body.newObject("PartDesign::Pocket", "Pocket004")
pocket5.Profile = sketch10
pocket5.Type = "UpToFirst"

# Sketch on YZ plane
sketch11 = body.newObject("Sketcher::SketchObject", "Sketch010")
sketch11.AttachmentSupport = (doc.getObject("YZ_Plane"), [""])
sketch11.MapMode = "FlatFace"
sketch11.AttachmentOffset = App.Placement(App.Vector(0, 0, 7.7 * 25.4), App.Rotation())
sketch11.addGeometry(Part.Circle(App.Vector(16.5, -76.2, 0), App.Vector(0, 0, 1), 2.5), False)
sketch11.addConstraint([
    Sketcher.Constraint("Diameter", 0, Q("0.2 in")),
    Sketcher.Constraint("DistanceY", 0, 3, -1, 1, Q("3 in")),
    Sketcher.Constraint("DistanceX", -1, 1, 0, 3, Q("0.65 in")),
])
pocket6 = body.newObject("PartDesign::Pocket", "Pocket005")
pocket6.Profile = sketch11
pocket6.Type = "UpToFirst"

# Sketch on YZ plane
sketch12 = body.newObject("Sketcher::SketchObject", "Sketch011")
sketch12.AttachmentSupport = (doc.getObject("YZ_Plane"), [""])
sketch12.MapMode = "FlatFace"
sketch12.AttachmentOffset = App.Placement(App.Vector(0, 0, 1.6 * 25.4), App.Rotation())
sketch12.addGeometry([
    Part.LineSegment(App.Vector(14.7, -16.6, 0), App.Vector(14.7, -20.4, 0)),
    Part.ArcOfCircle(Part.Circle(App.Vector(14, -20.4, 0), App.Vector(0, 0, 1), 0.8), math.radians(180), math.radians(360)),
    Part.LineSegment(App.Vector(13.2, -20.4, 0), App.Vector(13.2, -16.6, 0)),
    Part.ArcOfCircle(Part.Circle(App.Vector(14, -16.6, 0), App.Vector(0, 0, 1), 0.8), math.radians(0), math.radians(180)),
], False)
sketch12.addConstraint([
    Sketcher.Constraint("Tangent", 0, 2, 1, 2),
    Sketcher.Constraint("Tangent", 1, 1, 2, 1),
    Sketcher.Constraint("Tangent", 2, 2, 3, 2),
    Sketcher.Constraint("Tangent", 3, 1, 0, 1),
    Sketcher.Constraint("Vertical", 0),
    Sketcher.Constraint("Vertical", 2),
    Sketcher.Constraint("Radius", 1, Q("0.03 in")),
    Sketcher.Constraint("DistanceY", 0, 2, 0, 1, Q("0.15 in")),
    Sketcher.Constraint("DistanceX", -1, 1, 1, 3, Q("0.55 in")),
    Sketcher.Constraint("DistanceY", 1, 3, -1, 1, Q("0.805 in")),
])
pocket7 = body.newObject("PartDesign::Pocket", "Pocket006")
pocket7.Profile = sketch12
pocket7.Length = Q("1 in")
pocket7.Reversed = True

# Sketch on YZ plane
sketch13 = body.newObject("Sketcher::SketchObject", "Sketch012")
sketch13.AttachmentSupport = (doc.getObject("YZ_Plane"), [""])
sketch13.MapMode = "FlatFace"
sketch13.AttachmentOffset = App.Placement(App.Vector(0, 0, 1.6 * 25.4), App.Rotation())
sketch13.addGeometry([
    Part.LineSegment(App.Vector(14.7, -132, 0), App.Vector(14.7, -135.8, 0)),
    Part.ArcOfCircle(Part.Circle(App.Vector(14, -135.8, 0), App.Vector(0, 0, 1), 0.8), math.radians(180), math.radians(360)),
    Part.LineSegment(App.Vector(13.2, -135.8, 0), App.Vector(13.2, -132, 0)),
    Part.ArcOfCircle(Part.Circle(App.Vector(14, -132, 0), App.Vector(0, 0, 1), 0.8), math.radians(0), math.radians(180)),
], False)
sketch13.addConstraint([
    Sketcher.Constraint("Tangent", 0, 2, 1, 2),
    Sketcher.Constraint("Tangent", 1, 1, 2, 1),
    Sketcher.Constraint("Tangent", 2, 2, 3, 2),
    Sketcher.Constraint("Tangent", 3, 1, 0, 1),
    Sketcher.Constraint("Vertical", 0),
    Sketcher.Constraint("Vertical", 2),
    Sketcher.Constraint("Radius", 1, Q("0.03 in")),
    Sketcher.Constraint("DistanceY", 0, 2, 0, 1, Q("0.15 in")),
    Sketcher.Constraint("DistanceX", -1, 1, 1, 3, Q("0.55 in")),
    Sketcher.Constraint("DistanceY", 1, 3, -1, 1, Q("5.345 in")),
])
pocket8 = body.newObject("PartDesign::Pocket", "Pocket007")
pocket8.Profile = sketch13
pocket8.Length = Q("1 in")
pocket8.Reversed = True

# Sketch on XZ plane
sketch14 = body.newObject("Sketcher::SketchObject", "Sketch013")
sketch14.AttachmentSupport = (doc.getObject("XZ_Plane"), [""])
sketch14.MapMode = "FlatFace"
sketch14.AttachmentOffset = App.Placement(App.Vector(0, 0, -0.2 * 25.4), App.Rotation())
sketch14.addGeometry([
    Part.LineSegment(App.Vector(37.3, -20.4, 0), App.Vector(37.3, -16.6, 0)),  # 0
    Part.ArcOfCircle(Part.Circle(App.Vector(38.1, -16.6, 0), App.Vector(0, 0, 1), 0.8), math.radians(0), math.radians(180)),  # 1
    Part.LineSegment(App.Vector(38.9, -16.6, 0), App.Vector(38.9, -20.4, 0)),  # 2
    Part.ArcOfCircle(Part.Circle(App.Vector(38.1, -20.4, 0), App.Vector(0, 0, 1), 0.8), math.radians(180), math.radians(360)),  # 3
    Part.LineSegment(App.Vector(64.3, -16.6, 0), App.Vector(64.3, -20.4, 0)),  # 4
    Part.ArcOfCircle(Part.Circle(App.Vector(63.5, -20.4, 0), App.Vector(0, 0, 1), 0.8), math.radians(180), math.radians(360)),  # 5
    Part.LineSegment(App.Vector(62.7, -20.4, 0), App.Vector(62.7, -16.6, 0)),  # 6
    Part.ArcOfCircle(Part.Circle(App.Vector(63.5, -16.6, 0), App.Vector(0, 0, 1), 0.8), math.radians(0), math.radians(180)),  # 7
    Part.LineSegment(App.Vector(37.3, -135.8, 0), App.Vector(37.3, -132, 0)),  # 8
    Part.ArcOfCircle(Part.Circle(App.Vector(38.1, -132, 0), App.Vector(0, 0, 1), 0.8), math.radians(0), math.radians(180)),  # 9
    Part.LineSegment(App.Vector(38.9, -132, 0), App.Vector(38.9, -135.8, 0)),  # 10
    Part.ArcOfCircle(Part.Circle(App.Vector(38.1, -135.8, 0), App.Vector(0, 0, 1), 0.8), math.radians(180), math.radians(360)),  # 11
    Part.LineSegment(App.Vector(64.3, -132, 0), App.Vector(64.3, -135.8, 0)),  # 12
    Part.ArcOfCircle(Part.Circle(App.Vector(63.5, -135.8, 0), App.Vector(0, 0, 1), 0.8), math.radians(180), math.radians(360)),  # 13
    Part.LineSegment(App.Vector(62.7, -135.8, 0), App.Vector(62.7, -132, 0)),  # 14
    Part.ArcOfCircle(Part.Circle(App.Vector(63.5, -132, 0), App.Vector(0, 0, 1), 0.8), math.radians(0), math.radians(180)),  # 15
], False)
sketch14.addConstraint([
    Sketcher.Constraint("Tangent", 0, 2, 1, 2),
    Sketcher.Constraint("Tangent", 1, 1, 2, 1),
    Sketcher.Constraint("Tangent", 2, 2, 3, 2),
    Sketcher.Constraint("Tangent", 3, 1, 0, 1),
    Sketcher.Constraint("Tangent", 4, 2, 5, 2),
    Sketcher.Constraint("Tangent", 5, 1, 6, 1),
    Sketcher.Constraint("Tangent", 6, 2, 7, 2),
    Sketcher.Constraint("Tangent", 7, 1, 4, 1),
    Sketcher.Constraint("Tangent", 8, 2, 9, 2),
    Sketcher.Constraint("Tangent", 9, 1, 10, 1),
    Sketcher.Constraint("Tangent", 10, 2, 11, 2),
    Sketcher.Constraint("Tangent", 11, 1, 8, 1),
    Sketcher.Constraint("Tangent", 12, 2, 13, 2),
    Sketcher.Constraint("Tangent", 13, 1, 14, 1),
    Sketcher.Constraint("Tangent", 14, 2, 15, 2),
    Sketcher.Constraint("Tangent", 15, 1, 12, 1),
    Sketcher.Constraint("Vertical", 0),
    Sketcher.Constraint("Vertical", 2),
    Sketcher.Constraint("Vertical", 4),
    Sketcher.Constraint("Vertical", 6),
    Sketcher.Constraint("Vertical", 8),
    Sketcher.Constraint("Vertical", 10),
    Sketcher.Constraint("Vertical", 12),
    Sketcher.Constraint("Vertical", 14),
    Sketcher.Constraint("Equal", 3, 5),
    Sketcher.Constraint("Equal", 7, 9),
    Sketcher.Constraint("Equal", 11, 13),
    Sketcher.Constraint("Horizontal", 3, 3, 5, 3),
    Sketcher.Constraint("Horizontal", 1, 3, 7, 3),
    Sketcher.Constraint("Horizontal", 11, 3, 13, 3),
    Sketcher.Constraint("Horizontal", 9, 3, 15, 3),
    Sketcher.Constraint("Vertical", 3, 3, 9, 3),
    Sketcher.Constraint("Vertical", 7, 3, 13, 3),
    Sketcher.Constraint("Equal", 6, 8),
    Sketcher.Constraint("Radius", 1, Q("0.03 in")),
    Sketcher.Constraint("DistanceX", 3, 3, 5, 3, Q("1 in")),
    Sketcher.Constraint("DistanceY", 0, 1, 0, 2, Q("0.15 in")),
    Sketcher.Constraint("DistanceX", -1, 1, 1, 3, Q("1.5 in")),
    Sketcher.Constraint("DistanceY", 9, 3, 3, 3, Q("4.39 in")),
    Sketcher.Constraint("DistanceY", 1, 3, -1, 1, Q("0.655 in")),
])
pocket9 = body.newObject("PartDesign::Pocket", "Pocket008")
pocket9.Profile = sketch14
pocket9.Type = "ThroughAll"
pocket9.Reversed = True

# Sketch on YZ plane
sketch15 = body.newObject("Sketcher::SketchObject", "Sketch014")
sketch15.AttachmentSupport = (doc.getObject("YZ_Plane"), [""])
sketch15.MapMode = "FlatFace"
sketch15.AttachmentOffset = App.Placement(App.Vector(0, 0, 7.7 * 25.4), App.Rotation())
sketch15.addGeometry([
    Part.Circle(App.Vector(55.9, -83.4, 0), App.Vector(0, 0, 1), 2.4),
    Part.Circle(App.Vector(55.9, -119.8, 0), App.Vector(0, 0, 1), 2.4),
    Part.Circle(App.Vector(40.6, -101.6, 0), App.Vector(0, 0, 1), 2.5),
], False)
sketch15.addConstraint([
    Sketcher.Constraint("Equal", 0, 1),
    Sketcher.Constraint("Vertical", 0, 3, 1, 3),
    Sketcher.Constraint("Diameter", 2, Q("0.2 in")),
    Sketcher.Constraint("Diameter", 0, Q("0.19 in")),
    Sketcher.Constraint("DistanceY", 2, 3, -1, 1, Q("4 in")),
    Sketcher.Constraint("DistanceX", -1, 1, 0, 3, Q("2.2 in")),
    Sketcher.Constraint("DistanceX", -1, 1, 2, 3, Q("1.6 in")),
    Sketcher.Constraint("DistanceY", 0, 3, -1, 1, Q("3.284 in")),
    Sketcher.Constraint("DistanceY", 1, 3, -1, 1, Q("4.716 in")),
])
pocket10 = body.newObject("PartDesign::Pocket", "Pocket009")
pocket10.Profile = sketch15
pocket10.Type = "ThroughAll"

doc.recompute()
